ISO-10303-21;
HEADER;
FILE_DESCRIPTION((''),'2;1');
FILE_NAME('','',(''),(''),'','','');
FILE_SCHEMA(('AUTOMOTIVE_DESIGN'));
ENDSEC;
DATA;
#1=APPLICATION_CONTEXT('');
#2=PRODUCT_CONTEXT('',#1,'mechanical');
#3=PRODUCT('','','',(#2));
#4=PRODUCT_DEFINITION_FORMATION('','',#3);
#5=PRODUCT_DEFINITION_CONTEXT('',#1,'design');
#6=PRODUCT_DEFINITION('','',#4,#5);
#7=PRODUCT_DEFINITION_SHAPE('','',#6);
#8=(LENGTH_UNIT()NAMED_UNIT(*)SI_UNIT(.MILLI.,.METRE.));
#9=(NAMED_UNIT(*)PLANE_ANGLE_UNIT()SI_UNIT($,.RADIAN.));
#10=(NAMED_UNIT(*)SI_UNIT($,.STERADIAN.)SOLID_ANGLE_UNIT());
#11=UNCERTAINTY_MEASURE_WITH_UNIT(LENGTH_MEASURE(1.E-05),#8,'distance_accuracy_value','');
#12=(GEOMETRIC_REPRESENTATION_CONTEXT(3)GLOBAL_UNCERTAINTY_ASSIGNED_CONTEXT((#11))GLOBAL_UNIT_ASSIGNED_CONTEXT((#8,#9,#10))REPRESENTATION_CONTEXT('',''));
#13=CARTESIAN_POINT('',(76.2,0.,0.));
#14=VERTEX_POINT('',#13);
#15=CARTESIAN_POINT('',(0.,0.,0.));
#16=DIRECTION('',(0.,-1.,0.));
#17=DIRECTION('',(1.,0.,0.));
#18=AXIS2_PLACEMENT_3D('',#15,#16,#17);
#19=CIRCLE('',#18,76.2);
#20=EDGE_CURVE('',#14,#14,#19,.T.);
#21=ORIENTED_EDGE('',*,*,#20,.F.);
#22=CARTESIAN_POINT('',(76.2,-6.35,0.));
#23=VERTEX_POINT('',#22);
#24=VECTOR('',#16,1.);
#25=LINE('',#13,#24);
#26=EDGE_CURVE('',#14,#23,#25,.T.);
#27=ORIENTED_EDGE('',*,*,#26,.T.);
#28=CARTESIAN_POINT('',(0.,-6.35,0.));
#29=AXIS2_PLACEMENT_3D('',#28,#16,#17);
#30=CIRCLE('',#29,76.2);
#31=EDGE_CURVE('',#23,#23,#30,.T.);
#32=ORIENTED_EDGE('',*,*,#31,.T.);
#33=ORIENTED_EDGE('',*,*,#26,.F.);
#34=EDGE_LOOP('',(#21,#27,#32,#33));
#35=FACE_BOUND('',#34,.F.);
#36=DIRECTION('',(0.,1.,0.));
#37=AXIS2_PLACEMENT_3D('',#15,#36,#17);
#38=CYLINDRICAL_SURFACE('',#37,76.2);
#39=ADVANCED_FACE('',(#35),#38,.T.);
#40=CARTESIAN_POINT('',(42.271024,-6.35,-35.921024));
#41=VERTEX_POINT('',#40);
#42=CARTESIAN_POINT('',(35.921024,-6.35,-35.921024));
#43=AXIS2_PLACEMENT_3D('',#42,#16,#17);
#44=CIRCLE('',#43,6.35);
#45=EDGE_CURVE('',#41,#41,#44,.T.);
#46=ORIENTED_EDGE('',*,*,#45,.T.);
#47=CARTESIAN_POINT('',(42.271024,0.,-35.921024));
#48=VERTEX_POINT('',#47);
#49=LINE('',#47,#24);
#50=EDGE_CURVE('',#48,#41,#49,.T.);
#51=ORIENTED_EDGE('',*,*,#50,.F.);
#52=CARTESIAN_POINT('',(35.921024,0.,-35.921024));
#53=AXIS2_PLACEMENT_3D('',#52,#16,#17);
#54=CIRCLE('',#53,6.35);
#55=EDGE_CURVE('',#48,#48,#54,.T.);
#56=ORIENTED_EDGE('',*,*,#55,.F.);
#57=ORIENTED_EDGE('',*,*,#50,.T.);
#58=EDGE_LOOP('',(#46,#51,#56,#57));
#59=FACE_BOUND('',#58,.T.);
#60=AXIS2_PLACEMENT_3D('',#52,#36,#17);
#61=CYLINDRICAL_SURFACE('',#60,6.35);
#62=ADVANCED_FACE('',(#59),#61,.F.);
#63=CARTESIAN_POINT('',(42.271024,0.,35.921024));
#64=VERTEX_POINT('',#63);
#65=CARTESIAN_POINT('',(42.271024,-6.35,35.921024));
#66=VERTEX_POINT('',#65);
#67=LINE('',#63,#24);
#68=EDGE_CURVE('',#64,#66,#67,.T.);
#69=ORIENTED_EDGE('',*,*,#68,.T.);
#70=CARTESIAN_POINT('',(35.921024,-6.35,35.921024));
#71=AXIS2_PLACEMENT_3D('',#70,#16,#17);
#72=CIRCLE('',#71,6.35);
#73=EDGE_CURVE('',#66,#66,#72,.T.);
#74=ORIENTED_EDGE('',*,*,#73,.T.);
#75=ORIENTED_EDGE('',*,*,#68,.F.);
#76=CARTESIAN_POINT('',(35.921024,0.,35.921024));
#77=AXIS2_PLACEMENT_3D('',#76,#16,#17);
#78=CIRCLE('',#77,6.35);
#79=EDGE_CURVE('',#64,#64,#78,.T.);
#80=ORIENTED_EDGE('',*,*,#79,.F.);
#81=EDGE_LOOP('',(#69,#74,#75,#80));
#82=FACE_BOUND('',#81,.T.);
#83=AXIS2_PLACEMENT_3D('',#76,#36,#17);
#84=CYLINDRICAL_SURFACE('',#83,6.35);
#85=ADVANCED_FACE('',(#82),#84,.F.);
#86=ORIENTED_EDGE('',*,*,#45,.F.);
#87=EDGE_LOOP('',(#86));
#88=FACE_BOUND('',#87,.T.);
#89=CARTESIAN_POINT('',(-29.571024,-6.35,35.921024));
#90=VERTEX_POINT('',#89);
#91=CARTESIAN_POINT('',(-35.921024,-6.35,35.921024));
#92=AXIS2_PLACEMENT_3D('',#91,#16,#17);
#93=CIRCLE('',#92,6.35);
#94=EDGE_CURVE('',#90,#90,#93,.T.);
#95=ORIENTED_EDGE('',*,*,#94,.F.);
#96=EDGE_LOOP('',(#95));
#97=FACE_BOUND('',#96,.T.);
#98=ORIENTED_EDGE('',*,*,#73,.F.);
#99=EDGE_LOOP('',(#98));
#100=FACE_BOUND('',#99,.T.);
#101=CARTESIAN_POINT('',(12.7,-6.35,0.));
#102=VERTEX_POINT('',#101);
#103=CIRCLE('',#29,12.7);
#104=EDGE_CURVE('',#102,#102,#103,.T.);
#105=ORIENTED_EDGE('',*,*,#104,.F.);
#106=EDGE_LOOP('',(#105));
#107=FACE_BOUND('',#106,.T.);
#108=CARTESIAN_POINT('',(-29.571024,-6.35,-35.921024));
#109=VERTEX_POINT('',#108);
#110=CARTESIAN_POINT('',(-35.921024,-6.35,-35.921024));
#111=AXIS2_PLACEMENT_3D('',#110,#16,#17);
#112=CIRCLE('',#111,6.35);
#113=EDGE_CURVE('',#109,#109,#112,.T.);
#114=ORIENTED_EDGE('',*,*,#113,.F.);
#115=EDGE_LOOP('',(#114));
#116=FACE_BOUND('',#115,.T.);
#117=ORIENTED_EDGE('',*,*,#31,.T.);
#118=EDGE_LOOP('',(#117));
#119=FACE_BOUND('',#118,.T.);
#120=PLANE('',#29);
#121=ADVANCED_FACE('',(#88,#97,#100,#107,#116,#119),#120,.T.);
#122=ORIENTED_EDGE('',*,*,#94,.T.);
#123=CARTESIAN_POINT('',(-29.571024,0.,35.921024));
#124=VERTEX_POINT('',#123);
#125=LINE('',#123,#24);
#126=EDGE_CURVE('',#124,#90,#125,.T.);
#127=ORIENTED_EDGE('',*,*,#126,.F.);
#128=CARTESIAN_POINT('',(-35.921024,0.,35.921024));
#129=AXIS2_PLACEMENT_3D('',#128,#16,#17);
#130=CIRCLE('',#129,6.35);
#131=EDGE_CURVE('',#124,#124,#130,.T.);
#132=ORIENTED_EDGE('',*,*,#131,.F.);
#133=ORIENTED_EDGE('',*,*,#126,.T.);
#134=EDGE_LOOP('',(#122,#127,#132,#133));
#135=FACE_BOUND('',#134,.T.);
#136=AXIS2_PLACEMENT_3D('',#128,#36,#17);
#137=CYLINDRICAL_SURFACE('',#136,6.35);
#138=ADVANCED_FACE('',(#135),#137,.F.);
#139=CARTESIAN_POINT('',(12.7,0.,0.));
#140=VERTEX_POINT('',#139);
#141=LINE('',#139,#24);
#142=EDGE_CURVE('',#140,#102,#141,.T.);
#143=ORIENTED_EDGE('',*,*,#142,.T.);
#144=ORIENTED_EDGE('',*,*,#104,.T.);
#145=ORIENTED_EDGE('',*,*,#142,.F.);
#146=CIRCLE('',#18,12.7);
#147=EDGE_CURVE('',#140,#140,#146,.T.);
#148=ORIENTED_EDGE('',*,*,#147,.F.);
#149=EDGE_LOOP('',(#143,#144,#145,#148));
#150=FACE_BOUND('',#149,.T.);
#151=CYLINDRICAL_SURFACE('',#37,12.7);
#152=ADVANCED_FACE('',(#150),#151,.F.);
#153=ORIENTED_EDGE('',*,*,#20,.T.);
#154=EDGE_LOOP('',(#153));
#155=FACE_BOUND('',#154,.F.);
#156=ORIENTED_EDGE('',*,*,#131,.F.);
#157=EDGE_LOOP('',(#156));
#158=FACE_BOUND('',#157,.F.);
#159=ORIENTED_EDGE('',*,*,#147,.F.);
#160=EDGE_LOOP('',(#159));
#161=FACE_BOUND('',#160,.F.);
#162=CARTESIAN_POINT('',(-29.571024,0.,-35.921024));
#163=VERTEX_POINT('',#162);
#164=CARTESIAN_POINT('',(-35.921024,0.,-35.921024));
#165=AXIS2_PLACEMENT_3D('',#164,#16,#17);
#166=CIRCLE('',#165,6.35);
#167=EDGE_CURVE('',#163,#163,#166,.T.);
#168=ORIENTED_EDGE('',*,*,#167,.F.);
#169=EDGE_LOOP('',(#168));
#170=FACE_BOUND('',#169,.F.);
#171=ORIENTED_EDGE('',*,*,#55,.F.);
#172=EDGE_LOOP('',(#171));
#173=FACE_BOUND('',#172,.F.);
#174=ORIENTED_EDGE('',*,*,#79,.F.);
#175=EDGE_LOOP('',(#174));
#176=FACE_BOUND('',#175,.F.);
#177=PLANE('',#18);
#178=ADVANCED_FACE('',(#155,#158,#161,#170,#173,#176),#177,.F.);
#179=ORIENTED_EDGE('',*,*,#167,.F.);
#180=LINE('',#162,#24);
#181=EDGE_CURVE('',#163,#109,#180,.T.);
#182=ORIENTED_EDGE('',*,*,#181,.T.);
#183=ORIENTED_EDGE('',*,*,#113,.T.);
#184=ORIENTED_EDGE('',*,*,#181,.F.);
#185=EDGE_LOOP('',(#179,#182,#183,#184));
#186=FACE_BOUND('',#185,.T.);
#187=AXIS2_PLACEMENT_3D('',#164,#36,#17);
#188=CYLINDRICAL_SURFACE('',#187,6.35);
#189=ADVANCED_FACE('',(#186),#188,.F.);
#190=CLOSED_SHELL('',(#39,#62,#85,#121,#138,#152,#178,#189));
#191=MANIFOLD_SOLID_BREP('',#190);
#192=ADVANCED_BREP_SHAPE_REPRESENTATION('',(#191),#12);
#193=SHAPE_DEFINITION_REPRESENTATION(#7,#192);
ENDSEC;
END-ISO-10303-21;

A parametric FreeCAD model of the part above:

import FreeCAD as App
import Part
import Sketcher
Q = App.Units.Quantity

doc = App.newDocument("Part")
body = doc.addObject("PartDesign::Body", "Body")

# Sketch on XZ plane
sketch1 = doc.addObject("Sketcher::SketchObject", "Sketch")
body.addObject(sketch1)
sketch1.AttachmentSupport = (doc.XZ_Plane, [""])
sketch1.MapMode = "FlatFace"
sketch1.addGeometry([
    Part.Circle(App.Vector(0, 0, 0), App.Vector(0, 0, 1), 76),  # 0
    Part.Circle(App.Vector(-36, -36, 0), App.Vector(0, 0, 1), 6),  # 1
    Part.Circle(App.Vector(36, -36, 0), App.Vector(0, 0, 1), 6),  # 2
    Part.Circle(App.Vector(-36, 36, 0), App.Vector(0, 0, 1), 6),  # 3
    Part.Circle(App.Vector(0, 0, 0), App.Vector(0, 0, 1), 13),  # 4
    Part.Circle(App.Vector(36, 36, 0), App.Vector(0, 0, 1), 6),  # 5
], False)
sketch1.addConstraint([
    Sketcher.Constraint("Coincident", 0, 3, -1, 1),
    Sketcher.Constraint("Coincident", 4, 3, -1, 1),
    Sketcher.Constraint("Equal", 1, 2),
    Sketcher.Constraint("Equal", 2, 3),
    Sketcher.Constraint("Equal", 3, 5),
    Sketcher.Constraint("Symmetric", 2, 3, 3, 3, -1, 1),
    Sketcher.Constraint("Symmetric", 1, 3, 5, 3, -1, 1),
    Sketcher.Constraint("Symmetric", 1, 3, 2, 3, -2),
    Sketcher.Constraint("Diameter", 0, Q("6 in")),
    Sketcher.Constraint("Diameter", 4, Q("1 in")),
    Sketcher.Constraint("Diameter", 1, Q("0.5 in")),
    Sketcher.Constraint("DistanceX", 1, 3, 2, 3, Q("71.842048 mm")),
    Sketcher.Constraint("DistanceY", 1, 3, 3, 3, Q("71.842048 mm")),
])
pad1 = doc.addObject("PartDesign::Pad", "Pad")
body.addObject(pad1)
pad1.Profile = sketch1
pad1.Length = Q("0.25 in")

doc.recompute()
